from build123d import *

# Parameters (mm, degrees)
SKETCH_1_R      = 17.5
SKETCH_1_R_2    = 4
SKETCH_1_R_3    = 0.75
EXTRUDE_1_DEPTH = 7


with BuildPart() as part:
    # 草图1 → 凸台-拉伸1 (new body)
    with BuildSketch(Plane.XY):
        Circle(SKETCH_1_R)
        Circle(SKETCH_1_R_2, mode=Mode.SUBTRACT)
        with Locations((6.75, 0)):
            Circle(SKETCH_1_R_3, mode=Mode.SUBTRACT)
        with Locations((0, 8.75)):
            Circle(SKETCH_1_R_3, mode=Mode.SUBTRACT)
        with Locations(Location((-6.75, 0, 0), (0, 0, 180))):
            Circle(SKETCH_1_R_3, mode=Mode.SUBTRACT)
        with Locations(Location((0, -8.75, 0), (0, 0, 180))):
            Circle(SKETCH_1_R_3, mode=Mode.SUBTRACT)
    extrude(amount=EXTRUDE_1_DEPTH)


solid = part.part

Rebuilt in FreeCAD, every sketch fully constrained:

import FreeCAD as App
import Part
import Sketcher
Q = App.Units.Quantity

doc = App.newDocument("Part")
body = doc.addObject("PartDesign::Body", "Body")

sketch1 = body.newObject("Sketcher::SketchObject", "Sketch")
sketch1.AttachmentSupport = (doc.getObject("XY_Plane"), [""])
sketch1.MapMode = "FlatFace"
sketch1.addGeometry(Part.Circle(App.Vector(0, 0, 0), App.Vector(0, 0, 1), 17.5), False)
sketch1.addGeometry(Part.Circle(App.Vector(0, -8.75, 0), App.Vector(0, 0, 1), 0.75), False)
sketch1.addGeometry(Part.Circle(App.Vector(-6.75, 0, 0), App.Vector(0, 0, 1), 0.75), False)
sketch1.addGeometry(Part.Circle(App.Vector(0, 0, 0), App.Vector(0, 0, 1), 4), False)
sketch1.addGeometry(Part.Circle(App.Vector(6.75, 0, 0), App.Vector(0, 0, 1), 0.75), False)
sketch1.addGeometry(Part.Circle(App.Vector(0, 8.75, 0), App.Vector(0, 0, 1), 0.75), False)
sketch1.addConstraint(Sketcher.Constraint("Coincident", 0, 3, -1, 1))
sketch1.addConstraint(Sketcher.Constraint("Coincident", 3, 3, -1, 1))
sketch1.addConstraint(Sketcher.Constraint("Equal", 1, 2))
sketch1.addConstraint(Sketcher.Constraint("Equal", 2, 4))
sketch1.addConstraint(Sketcher.Constraint("Equal", 4, 5))
sketch1.addConstraint(Sketcher.Constraint("Symmetric", 2, 3, 4, 3, -1, 1))
sketch1.addConstraint(Sketcher.Constraint("Symmetric", 1, 3, 5, 3, -1, 1))
sketch1.addConstraint(Sketcher.Constraint("PointOnObject", 1, 3, -2))
sketch1.addConstraint(Sketcher.Constraint("PointOnObject", 2, 3, -1))
sketch1.addConstraint(Sketcher.Constraint("Diameter", 0, Q("35 mm")))
sketch1.addConstraint(Sketcher.Constraint("Diameter", 3, Q("8 mm")))
sketch1.addConstraint(Sketcher.Constraint("Diameter", 1, Q("1.5 mm")))
sketch1.addConstraint(Sketcher.Constraint("DistanceX", 2, 3, 4, 3, Q("13.5 mm")))
sketch1.addConstraint(Sketcher.Constraint("DistanceY", 1, 3, 5, 3, Q("17.5 mm")))
pad1 = body.newObject("PartDesign::Pad", "Pad")
pad1.Profile = sketch1
pad1.Length = 7

doc.recompute()
